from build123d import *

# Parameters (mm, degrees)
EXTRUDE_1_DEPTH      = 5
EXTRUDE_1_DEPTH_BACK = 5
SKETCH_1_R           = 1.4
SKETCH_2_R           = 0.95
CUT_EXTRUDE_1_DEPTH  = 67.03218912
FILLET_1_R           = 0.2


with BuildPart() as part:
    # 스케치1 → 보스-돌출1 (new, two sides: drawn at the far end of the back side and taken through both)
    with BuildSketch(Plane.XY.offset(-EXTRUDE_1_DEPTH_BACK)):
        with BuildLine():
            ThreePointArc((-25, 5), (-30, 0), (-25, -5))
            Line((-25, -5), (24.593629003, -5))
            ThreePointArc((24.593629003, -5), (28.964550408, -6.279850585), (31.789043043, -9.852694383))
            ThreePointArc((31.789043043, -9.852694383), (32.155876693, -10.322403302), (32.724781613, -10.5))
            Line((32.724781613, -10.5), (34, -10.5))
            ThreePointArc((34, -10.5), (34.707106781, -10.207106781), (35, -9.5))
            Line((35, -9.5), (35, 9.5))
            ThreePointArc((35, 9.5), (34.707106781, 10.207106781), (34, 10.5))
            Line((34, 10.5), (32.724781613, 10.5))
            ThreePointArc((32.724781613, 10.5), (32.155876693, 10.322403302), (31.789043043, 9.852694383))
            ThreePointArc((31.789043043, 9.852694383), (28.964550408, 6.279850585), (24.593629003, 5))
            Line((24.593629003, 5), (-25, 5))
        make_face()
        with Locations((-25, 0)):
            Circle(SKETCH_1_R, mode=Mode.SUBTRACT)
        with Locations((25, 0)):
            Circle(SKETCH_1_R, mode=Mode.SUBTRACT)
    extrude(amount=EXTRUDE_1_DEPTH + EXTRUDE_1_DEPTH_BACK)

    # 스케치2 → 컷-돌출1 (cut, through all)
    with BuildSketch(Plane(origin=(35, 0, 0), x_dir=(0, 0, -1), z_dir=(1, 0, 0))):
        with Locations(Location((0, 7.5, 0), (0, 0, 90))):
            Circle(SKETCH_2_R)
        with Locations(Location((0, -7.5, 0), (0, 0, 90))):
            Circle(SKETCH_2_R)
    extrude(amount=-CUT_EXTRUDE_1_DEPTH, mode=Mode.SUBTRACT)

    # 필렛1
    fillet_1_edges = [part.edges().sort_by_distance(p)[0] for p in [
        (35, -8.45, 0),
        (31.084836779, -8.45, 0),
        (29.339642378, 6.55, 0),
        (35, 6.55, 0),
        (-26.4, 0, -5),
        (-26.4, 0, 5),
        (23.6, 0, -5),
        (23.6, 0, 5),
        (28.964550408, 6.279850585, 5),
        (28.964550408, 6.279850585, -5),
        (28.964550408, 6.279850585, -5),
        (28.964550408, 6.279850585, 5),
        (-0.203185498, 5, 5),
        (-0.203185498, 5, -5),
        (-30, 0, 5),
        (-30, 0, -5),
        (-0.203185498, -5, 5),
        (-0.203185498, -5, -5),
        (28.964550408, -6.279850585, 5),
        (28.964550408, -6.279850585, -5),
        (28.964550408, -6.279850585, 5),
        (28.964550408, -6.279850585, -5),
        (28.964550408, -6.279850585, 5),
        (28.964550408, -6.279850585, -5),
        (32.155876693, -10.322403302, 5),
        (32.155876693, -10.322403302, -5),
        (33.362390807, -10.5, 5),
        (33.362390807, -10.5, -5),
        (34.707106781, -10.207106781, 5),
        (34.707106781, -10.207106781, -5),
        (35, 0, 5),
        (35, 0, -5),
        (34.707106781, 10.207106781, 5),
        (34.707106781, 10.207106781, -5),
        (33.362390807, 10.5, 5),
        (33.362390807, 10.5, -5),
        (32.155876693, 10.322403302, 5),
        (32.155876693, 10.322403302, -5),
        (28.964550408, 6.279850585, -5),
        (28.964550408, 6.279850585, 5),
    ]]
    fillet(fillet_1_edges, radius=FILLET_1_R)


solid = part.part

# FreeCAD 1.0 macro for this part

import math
import FreeCAD as App
import Part
import Sketcher
Q = App.Units.Quantity

doc = App.newDocument("Part")
body = doc.addObject("PartDesign::Body", "Body")

# Sketch on XY plane
sketch1 = body.newObject("Sketcher::SketchObject", "Sketch")
sketch1.AttachmentSupport = (doc.getObject("XY_Plane"), [""])
sketch1.MapMode = "FlatFace"
sketch1.addGeometry(Part.ArcOfCircle(Part.Circle(App.Vector(-25, 0, 0), App.Vector(0, 0, 1), 5), math.radians(90), math.radians(270)), False)
sketch1.addGeometry(Part.LineSegment(App.Vector(-25, -5, 0), App.Vector(24.6, -5, 0)), False)
sketch1.addGeometry(Part.ArcOfCircle(Part.Circle(App.Vector(24.8, -12.5, 0), App.Vector(0, 0, 1), 7.5), math.radians(21), math.radians(91)), False)
sketch1.addGeometry(Part.ArcOfCircle(Part.Circle(App.Vector(32.7, -9.5, 0), App.Vector(0, 0, 1), 1), math.radians(-159), math.radians(-90)), False)
sketch1.addGeometry(Part.LineSegment(App.Vector(32.7, -10.5, 0), App.Vector(34, -10.5, 0)), False)
sketch1.addGeometry(Part.ArcOfCircle(Part.Circle(App.Vector(34, -9.5, 0), App.Vector(0, 0, 1), 1), math.radians(-90), math.radians(0)), False)
sketch1.addGeometry(Part.LineSegment(App.Vector(35, -9.5, 0), App.Vector(35, 9.5, 0)), False)
sketch1.addGeometry(Part.ArcOfCircle(Part.Circle(App.Vector(34, 9.5, 0), App.Vector(0, 0, 1), 1), math.radians(0), math.radians(90)), False)
sketch1.addGeometry(Part.LineSegment(App.Vector(34, 10.5, 0), App.Vector(32.7, 10.5, 0)), False)
sketch1.addGeometry(Part.ArcOfCircle(Part.Circle(App.Vector(32.7, 9.5, 0), App.Vector(0, 0, 1), 1), math.radians(90), math.radians(159)), False)
sketch1.addGeometry(Part.ArcOfCircle(Part.Circle(App.Vector(24.8, 12.5, 0), App.Vector(0, 0, 1), 7.5), math.radians(-91), math.radians(-21)), False)
sketch1.addGeometry(Part.LineSegment(App.Vector(24.6, 5, 0), App.Vector(-25, 5, 0)), False)
sketch1.addGeometry(Part.Circle(App.Vector(-25, 0, 0), App.Vector(0, 0, 1), 1.4), False)
sketch1.addGeometry(Part.Circle(App.Vector(25, 0, 0), App.Vector(0, 0, 1), 1.4), False)
sketch1.addConstraint(Sketcher.Constraint("Tangent", 0, 2, 1, 1))
sketch1.addConstraint(Sketcher.Constraint("Coincident", 1, 2, 2, 2))
sketch1.addConstraint(Sketcher.Constraint("Tangent", 2, 1, 3, 1))
sketch1.addConstraint(Sketcher.Constraint("Tangent", 3, 2, 4, 1))
sketch1.addConstraint(Sketcher.Constraint("Tangent", 4, 2, 5, 1))
sketch1.addConstraint(Sketcher.Constraint("Tangent", 5, 2, 6, 1))
sketch1.addConstraint(Sketcher.Constraint("Tangent", 6, 2, 7, 1))
sketch1.addConstraint(Sketcher.Constraint("Tangent", 7, 2, 8, 1))
sketch1.addConstraint(Sketcher.Constraint("Tangent", 8, 2, 9, 1))
sketch1.addConstraint(Sketcher.Constraint("Tangent", 9, 2, 10, 2))
sketch1.addConstraint(Sketcher.Constraint("Coincident", 10, 1, 11, 1))
sketch1.addConstraint(Sketcher.Constraint("Tangent", 11, 2, 0, 1))
sketch1.addConstraint(Sketcher.Constraint("Horizontal", 1))
sketch1.addConstraint(Sketcher.Constraint("Horizontal", 4))
sketch1.addConstraint(Sketcher.Constraint("Vertical", 6))
sketch1.addConstraint(Sketcher.Constraint("Horizontal", 8))
sketch1.addConstraint(Sketcher.Constraint("Horizontal", 11))
sketch1.addConstraint(Sketcher.Constraint("Coincident", 12, 3, 0, 3))
sketch1.addConstraint(Sketcher.Constraint("Equal", 3, 5))
sketch1.addConstraint(Sketcher.Constraint("Equal", 5, 7))
sketch1.addConstraint(Sketcher.Constraint("Equal", 7, 9))
sketch1.addConstraint(Sketcher.Constraint("Equal", 2, 10))
sketch1.addConstraint(Sketcher.Constraint("Equal", 12, 13))
sketch1.addConstraint(Sketcher.Constraint("Symmetric", 0, 3, 13, 3, -1, 1))
sketch1.addConstraint(Sketcher.Constraint("Symmetric", 3, 3, 9, 3, -1))
sketch1.addConstraint(Sketcher.Constraint("Symmetric", 1, 2, 10, 1, -1))
sketch1.addConstraint(Sketcher.Constraint("Radius", 0, Q("5 mm")))
sketch1.addConstraint(Sketcher.Constraint("Radius", 3, Q("1 mm")))
sketch1.addConstraint(Sketcher.Constraint("Diameter", 12, Q("2.8 mm")))
sketch1.addConstraint(Sketcher.Constraint("Radius", 2, Q("7.5 mm")))
sketch1.addConstraint(Sketcher.Constraint("DistanceY", 6, 1, 6, 2, Q("19 mm")))
sketch1.addConstraint(Sketcher.Constraint("DistanceX", 0, 3, -1, 1, Q("25 mm")))
sketch1.addConstraint(Sketcher.Constraint("DistanceX", -1, 1, 5, 3, Q("34 mm")))
sketch1.addConstraint(Sketcher.Constraint("DistanceX", 1, 1, 1, 2, Q("49.593629 mm")))
sketch1.addConstraint(Sketcher.Constraint("DistanceX", 4, 1, 4, 2, Q("1.275218 mm")))
pad1 = body.newObject("PartDesign::Pad", "Pad")
pad1.Profile = sketch1
pad1.Type = "TwoLengths"
pad1.Length = 5
pad1.Length2 = 5

# Sketch on YZ plane
sketch2 = body.newObject("Sketcher::SketchObject", "Sketch001")
sketch2.AttachmentSupport = (doc.getObject("YZ_Plane"), [""])
sketch2.MapMode = "FlatFace"
sketch2.AttachmentOffset = App.Placement(App.Vector(0, 0, 35), App.Rotation())
sketch2.addGeometry(Part.Circle(App.Vector(7.5, 0, 0), App.Vector(0, 0, 1), 0.9), False)
sketch2.addGeometry(Part.Circle(App.Vector(-7.5, 0, 0), App.Vector(0, 0, 1), 0.9), False)
sketch2.addConstraint(Sketcher.Constraint("Equal", 0, 1))
sketch2.addConstraint(Sketcher.Constraint("Symmetric", 0, 3, 1, 3, -1, 1))
sketch2.addConstraint(Sketcher.Constraint("PointOnObject", 0, 3, -1))
sketch2.addConstraint(Sketcher.Constraint("Diameter", 0, Q("1.9 mm")))
sketch2.addConstraint(Sketcher.Constraint("DistanceX", 1, 3, 0, 3, Q("15 mm")))
pocket1 = body.newObject("PartDesign::Pocket", "Pocket")
pocket1.Profile = sketch2
pocket1.Type = "ThroughAll"
doc.recompute()

fillet = body.newObject("PartDesign::Fillet", "Fillet")
fillet.Base = (pocket1, ["Edge1"])
fillet.UseAllEdges = True
fillet.Radius = 0.2

doc.recompute()
